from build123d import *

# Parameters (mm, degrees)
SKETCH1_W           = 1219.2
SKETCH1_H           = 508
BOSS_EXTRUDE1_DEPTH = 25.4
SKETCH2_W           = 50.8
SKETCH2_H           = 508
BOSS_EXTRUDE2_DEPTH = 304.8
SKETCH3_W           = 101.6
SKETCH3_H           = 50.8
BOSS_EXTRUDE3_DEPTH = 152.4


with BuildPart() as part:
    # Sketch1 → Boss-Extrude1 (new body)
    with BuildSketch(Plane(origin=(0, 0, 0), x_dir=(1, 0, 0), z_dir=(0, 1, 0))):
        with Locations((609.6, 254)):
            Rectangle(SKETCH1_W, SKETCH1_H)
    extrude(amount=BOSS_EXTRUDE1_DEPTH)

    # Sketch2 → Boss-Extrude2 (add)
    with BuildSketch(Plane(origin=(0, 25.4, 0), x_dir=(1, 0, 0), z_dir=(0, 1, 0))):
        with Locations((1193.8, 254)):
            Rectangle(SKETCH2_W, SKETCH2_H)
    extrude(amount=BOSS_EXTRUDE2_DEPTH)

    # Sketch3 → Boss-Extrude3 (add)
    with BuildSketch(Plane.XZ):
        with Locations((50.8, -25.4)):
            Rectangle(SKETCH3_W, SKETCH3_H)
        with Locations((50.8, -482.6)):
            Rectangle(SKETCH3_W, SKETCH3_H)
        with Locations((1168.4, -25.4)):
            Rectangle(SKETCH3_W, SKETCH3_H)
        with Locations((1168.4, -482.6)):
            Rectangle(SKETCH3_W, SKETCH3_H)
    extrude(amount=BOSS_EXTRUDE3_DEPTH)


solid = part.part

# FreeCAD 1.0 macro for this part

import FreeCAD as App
import Part
import Sketcher
from FreeCAD import Vector
Q = App.Units.Quantity

doc = App.newDocument("Part")
params = doc.addObject("Spreadsheet::Sheet", "Params")
for row, (alias, value) in enumerate([
    ("sketch1_width", "48 in"),
    ("sketch1_height", "20 in"),
    ("pad1_length", "1 in"),
    ("sketch2_width", "2 in"),
    ("sketch2_height", "20 in"),
    ("pad2_length", "12 in"),
    ("sketch3_width", "4 in"),
    ("sketch3_height", "2 in"),
    ("pad3_length", "6 in"),
], start=1):
    params.set(f"A{row}", alias)
    params.set(f"B{row}", "=" + value)
    params.setAlias(f"B{row}", alias)

body = doc.addObject("PartDesign::Body", "Body")

# Sketch on XZ plane
sketch1 = body.newObject("Sketcher::SketchObject", "Sketch")
sketch1.AttachmentSupport = (doc.getObject("XZ_Plane"), [""])
sketch1.MapMode = "FlatFace"
sketch1.addGeometry(Part.LineSegment(Vector(0, -508, 0), Vector(0, 0, 0)), False)
sketch1.addGeometry(Part.LineSegment(Vector(0, 0, 0), Vector(1219, 0, 0)), False)
sketch1.addGeometry(Part.LineSegment(Vector(1219, 0, 0), Vector(1219, -508, 0)), False)
sketch1.addGeometry(Part.LineSegment(Vector(1219, -508, 0), Vector(0, -508, 0)), False)
sketch1.addConstraint(Sketcher.Constraint("Coincident", 0, 2, 1, 1))
sketch1.addConstraint(Sketcher.Constraint("Coincident", 1, 2, 2, 1))
sketch1.addConstraint(Sketcher.Constraint("Coincident", 2, 2, 3, 1))
sketch1.addConstraint(Sketcher.Constraint("Coincident", 3, 2, 0, 1))
sketch1.addConstraint(Sketcher.Constraint("Vertical", 0))
sketch1.addConstraint(Sketcher.Constraint("Horizontal", 1))
sketch1.addConstraint(Sketcher.Constraint("Vertical", 2))
sketch1.addConstraint(Sketcher.Constraint("Horizontal", 3))
sketch1.addConstraint(Sketcher.Constraint("Coincident", 0, 2, -1, 1))
sketch1.addConstraint(Sketcher.Constraint("DistanceX", 1, 1, 1, 2, Q("48 in")))
sketch1.addConstraint(Sketcher.Constraint("DistanceY", 0, 1, 0, 2, Q("20 in")))
sketch1.setExpression("Constraints[9]", "Params.sketch1_width")
sketch1.setExpression("Constraints[10]", "Params.sketch1_height")
pad1 = body.newObject("PartDesign::Pad", "Pad")
pad1.Profile = sketch1
pad1.setExpression("Length", "Params.pad1_length")
pad1.Reversed = True

# Sketch on XZ plane
sketch2 = body.newObject("Sketcher::SketchObject", "Sketch001")
sketch2.AttachmentSupport = (doc.getObject("XZ_Plane"), [""])
sketch2.MapMode = "FlatFace"
sketch2.AttachmentOffset = App.Placement(Vector(0, 0, -1 * 25.4), App.Rotation())
sketch2.addGeometry(Part.LineSegment(Vector(1168, -508, 0), Vector(1168, 0, 0)), False)
sketch2.addGeometry(Part.LineSegment(Vector(1168, 0, 0), Vector(1219, 0, 0)), False)
sketch2.addGeometry(Part.LineSegment(Vector(1219, 0, 0), Vector(1219, -508, 0)), False)
sketch2.addGeometry(Part.LineSegment(Vector(1219, -508, 0), Vector(1168, -508, 0)), False)
sketch2.addConstraint(Sketcher.Constraint("Coincident", 0, 2, 1, 1))
sketch2.addConstraint(Sketcher.Constraint("Coincident", 1, 2, 2, 1))
sketch2.addConstraint(Sketcher.Constraint("Coincident", 2, 2, 3, 1))
sketch2.addConstraint(Sketcher.Constraint("Coincident", 3, 2, 0, 1))
sketch2.addConstraint(Sketcher.Constraint("Vertical", 0))
sketch2.addConstraint(Sketcher.Constraint("Horizontal", 1))
sketch2.addConstraint(Sketcher.Constraint("Vertical", 2))
sketch2.addConstraint(Sketcher.Constraint("Horizontal", 3))
sketch2.addConstraint(Sketcher.Constraint("PointOnObject", 0, 2, -1))
sketch2.addConstraint(Sketcher.Constraint("DistanceX", 1, 1, 1, 2, Q("2 in")))
sketch2.addConstraint(Sketcher.Constraint("DistanceY", 0, 1, 0, 2, Q("20 in")))
sketch2.addConstraint(Sketcher.Constraint("DistanceX", -1, 1, 0, 2, Q("46 in")))
sketch2.setExpression("Constraints[9]", "Params.sketch2_width")
sketch2.setExpression("Constraints[10]", "Params.sketch2_height")
pad2 = body.newObject("PartDesign::Pad", "Pad001")
pad2.Profile = sketch2
pad2.setExpression("Length", "Params.pad2_length")
pad2.Reversed = True

# Sketch on XZ plane
sketch3 = body.newObject("Sketcher::SketchObject", "Sketch002")
sketch3.AttachmentSupport = (doc.getObject("XZ_Plane"), [""])
sketch3.MapMode = "FlatFace"
sketch3.addGeometry(Part.LineSegment(Vector(0, 0, 0), Vector(0, -51, 0)), False)
sketch3.addGeometry(Part.LineSegment(Vector(0, -51, 0), Vector(102, -51, 0)), False)
sketch3.addGeometry(Part.LineSegment(Vector(102, -51, 0), Vector(102, 0, 0)), False)
sketch3.addGeometry(Part.LineSegment(Vector(102, 0, 0), Vector(0, 0, 0)), False)
sketch3.addGeometry(Part.LineSegment(Vector(0, -457, 0), Vector(0, -508, 0)), False)
sketch3.addGeometry(Part.LineSegment(Vector(0, -508, 0), Vector(102, -508, 0)), False)
sketch3.addGeometry(Part.LineSegment(Vector(102, -508, 0), Vector(102, -457, 0)), False)
sketch3.addGeometry(Part.LineSegment(Vector(102, -457, 0), Vector(0, -457, 0)), False)
sketch3.addGeometry(Part.LineSegment(Vector(1118, 0, 0), Vector(1118, -51, 0)), False)
sketch3.addGeometry(Part.LineSegment(Vector(1118, -51, 0), Vector(1219, -51, 0)), False)
sketch3.addGeometry(Part.LineSegment(Vector(1219, -51, 0), Vector(1219, 0, 0)), False)
sketch3.addGeometry(Part.LineSegment(Vector(1219, 0, 0), Vector(1118, 0, 0)), False)
sketch3.addGeometry(Part.LineSegment(Vector(1118, -457, 0), Vector(1118, -508, 0)), False)
sketch3.addGeometry(Part.LineSegment(Vector(1118, -508, 0), Vector(1219, -508, 0)), False)
sketch3.addGeometry(Part.LineSegment(Vector(1219, -508, 0), Vector(1219, -457, 0)), False)
sketch3.addGeometry(Part.LineSegment(Vector(1219, -457, 0), Vector(1118, -457, 0)), False)
sketch3.addConstraint(Sketcher.Constraint("Coincident", 0, 2, 1, 1))
sketch3.addConstraint(Sketcher.Constraint("Coincident", 1, 2, 2, 1))
sketch3.addConstraint(Sketcher.Constraint("Coincident", 2, 2, 3, 1))
sketch3.addConstraint(Sketcher.Constraint("Coincident", 3, 2, 0, 1))
sketch3.addConstraint(Sketcher.Constraint("Coincident", 4, 2, 5, 1))
sketch3.addConstraint(Sketcher.Constraint("Coincident", 5, 2, 6, 1))
sketch3.addConstraint(Sketcher.Constraint("Coincident", 6, 2, 7, 1))
sketch3.addConstraint(Sketcher.Constraint("Coincident", 7, 2, 4, 1))
sketch3.addConstraint(Sketcher.Constraint("Coincident", 8, 2, 9, 1))
sketch3.addConstraint(Sketcher.Constraint("Coincident", 9, 2, 10, 1))
sketch3.addConstraint(Sketcher.Constraint("Coincident", 10, 2, 11, 1))
sketch3.addConstraint(Sketcher.Constraint("Coincident", 11, 2, 8, 1))
sketch3.addConstraint(Sketcher.Constraint("Coincident", 12, 2, 13, 1))
sketch3.addConstraint(Sketcher.Constraint("Coincident", 13, 2, 14, 1))
sketch3.addConstraint(Sketcher.Constraint("Coincident", 14, 2, 15, 1))
sketch3.addConstraint(Sketcher.Constraint("Coincident", 15, 2, 12, 1))
sketch3.addConstraint(Sketcher.Constraint("Vertical", 0))
sketch3.addConstraint(Sketcher.Constraint("Horizontal", 1))
sketch3.addConstraint(Sketcher.Constraint("Vertical", 2))
sketch3.addConstraint(Sketcher.Constraint("Horizontal", 3))
sketch3.addConstraint(Sketcher.Constraint("Vertical", 4))
sketch3.addConstraint(Sketcher.Constraint("Horizontal", 5))
sketch3.addConstraint(Sketcher.Constraint("Vertical", 6))
sketch3.addConstraint(Sketcher.Constraint("Horizontal", 7))
sketch3.addConstraint(Sketcher.Constraint("Vertical", 8))
sketch3.addConstraint(Sketcher.Constraint("Horizontal", 9))
sketch3.addConstraint(Sketcher.Constraint("Vertical", 10))
sketch3.addConstraint(Sketcher.Constraint("Horizontal", 11))
sketch3.addConstraint(Sketcher.Constraint("Vertical", 12))
sketch3.addConstraint(Sketcher.Constraint("Horizontal", 13))
sketch3.addConstraint(Sketcher.Constraint("Vertical", 14))
sketch3.addConstraint(Sketcher.Constraint("Horizontal", 15))
sketch3.addConstraint(Sketcher.Constraint("Coincident", 3, 2, -1, 1))
sketch3.addConstraint(Sketcher.Constraint("PointOnObject", 4, 2, -2))
sketch3.addConstraint(Sketcher.Constraint("PointOnObject", 10, 2, -1))
sketch3.addConstraint(Sketcher.Constraint("Horizontal", 1, 2, 8, 2))
sketch3.addConstraint(Sketcher.Constraint("Horizontal", 5, 2, 12, 2))
sketch3.addConstraint(Sketcher.Constraint("Horizontal", 7, 2, 14, 2))
sketch3.addConstraint(Sketcher.Constraint("Vertical", 2, 2, 5, 2))
sketch3.addConstraint(Sketcher.Constraint("Vertical", 11, 2, 12, 2))
sketch3.addConstraint(Sketcher.Constraint("Vertical", 10, 2, 13, 2))
sketch3.addConstraint(Sketcher.Constraint("Equal", 7, 9))
sketch3.addConstraint(Sketcher.Constraint("Equal", 2, 4))
sketch3.addConstraint(Sketcher.Constraint("DistanceX", 1, 1, 1, 2, Q("4 in")))
sketch3.addConstraint(Sketcher.Constraint("DistanceY", 0, 2, 0, 1, Q("2 in")))
sketch3.addConstraint(Sketcher.Constraint("DistanceY", 4, 2, -1, 1, Q("20 in")))
sketch3.addConstraint(Sketcher.Constraint("DistanceX", -1, 1, 8, 2, Q("44 in")))
sketch3.setExpression("Constraints[43]", "Params.sketch3_width")
sketch3.setExpression("Constraints[44]", "Params.sketch3_height")
pad3 = body.newObject("PartDesign::Pad", "Pad002")
pad3.Profile = sketch3
pad3.setExpression("Length", "Params.pad3_length")

doc.recompute()
